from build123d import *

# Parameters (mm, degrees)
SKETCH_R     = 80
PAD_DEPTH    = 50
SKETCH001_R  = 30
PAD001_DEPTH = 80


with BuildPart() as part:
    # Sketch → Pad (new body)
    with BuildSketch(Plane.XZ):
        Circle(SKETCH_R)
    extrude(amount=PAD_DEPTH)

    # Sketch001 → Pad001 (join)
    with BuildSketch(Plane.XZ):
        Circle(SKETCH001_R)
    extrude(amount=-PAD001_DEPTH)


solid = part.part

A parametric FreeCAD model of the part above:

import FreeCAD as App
import Part
import Sketcher
from FreeCAD import Vector
Q = App.Units.Quantity

doc = App.newDocument("Part")
body = doc.addObject("PartDesign::Body", "Body")

sketch1 = body.newObject("Sketcher::SketchObject", "Sketch")
sketch1.AttachmentSupport = (doc.getObject("XZ_Plane"), [""])
sketch1.MapMode = "FlatFace"
sketch1.addGeometry(Part.Circle(Vector(0, 0, 0), Vector(0, 0, 1), 80), False)
sketch1.addConstraint([
    Sketcher.Constraint("Coincident", 0, 3, -1, 1),
    Sketcher.Constraint("Diameter", 0, Q("160 mm")),
])
pad1 = body.newObject("PartDesign::Pad", "Pad")
pad1.Profile = sketch1
pad1.Length = 50

sketch2 = body.newObject("Sketcher::SketchObject", "Sketch001")
sketch2.AttachmentSupport = (doc.getObject("XZ_Plane"), [""])
sketch2.MapMode = "FlatFace"
sketch2.addGeometry(Part.Circle(Vector(0, 0, 0), Vector(0, 0, 1), 30), False)
sketch2.addConstraint([
    Sketcher.Constraint("Coincident", 0, 3, -1, 1),
    Sketcher.Constraint("Diameter", 0, Q("60 mm")),
])
pad2 = body.newObject("PartDesign::Pad", "Pad001")
pad2.Profile = sketch2
pad2.Length = 80
pad2.Reversed = True

doc.recompute()
